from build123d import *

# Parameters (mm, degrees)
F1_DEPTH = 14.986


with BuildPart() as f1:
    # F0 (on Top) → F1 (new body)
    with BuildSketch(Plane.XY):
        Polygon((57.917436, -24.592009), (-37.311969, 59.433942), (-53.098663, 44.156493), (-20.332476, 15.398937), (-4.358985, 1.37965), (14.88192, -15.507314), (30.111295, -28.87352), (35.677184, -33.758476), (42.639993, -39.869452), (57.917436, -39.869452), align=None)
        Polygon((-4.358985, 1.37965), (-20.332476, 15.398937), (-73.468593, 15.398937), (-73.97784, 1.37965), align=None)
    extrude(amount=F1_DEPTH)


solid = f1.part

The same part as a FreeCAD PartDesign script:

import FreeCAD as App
import Part
import Sketcher
Q = App.Units.Quantity


def add_polygon(sketch, points):
    """Adds a closed chain of lines whose ends are joined by coincident constraints."""
    first, n = sketch.GeometryCount, len(points)
    for a, b in zip(points, points[1:] + points[:1]):
        sketch.addGeometry(Part.LineSegment(App.Vector(*a, 0), App.Vector(*b, 0)), False)
    for i in range(n):
        sketch.addConstraint(Sketcher.Constraint("Coincident", first + i, 2, first + (i + 1) % n, 1))

doc = App.newDocument("Part")
body = doc.addObject("PartDesign::Body", "Body")

# Sketch on XY plane
sketch1 = body.newObject("Sketcher::SketchObject", "Sketch")
sketch1.AttachmentSupport = (doc.getObject("XY_Plane"), [""])
sketch1.MapMode = "FlatFace"
add_polygon(sketch1, [(58, -25), (-37, 59), (-53, 44), (-20, 15), (-73, 15), (-74, 1), (-4, 1), (15, -16), (30, -29), (36, -34), (43, -40), (58, -40)])  # lines 0-11
sketch1.addConstraint(Sketcher.Constraint("Horizontal", 3))
sketch1.addConstraint(Sketcher.Constraint("Horizontal", 5))
sketch1.addConstraint(Sketcher.Constraint("Horizontal", 10))
sketch1.addConstraint(Sketcher.Constraint("Vertical", 11))
sketch1.addConstraint(Sketcher.Constraint("Parallel", 2, 6))
sketch1.addConstraint(Sketcher.Constraint("Parallel", 6, 7))
sketch1.addConstraint(Sketcher.Constraint("Parallel", 7, 8))
sketch1.addConstraint(Sketcher.Constraint("Parallel", 8, 9))
sketch1.addConstraint(Sketcher.Constraint("Equal", 10, 11))
sketch1.addConstraint(Sketcher.Constraint("Distance", 0, Q("5 in")))
sketch1.addConstraint(Sketcher.Constraint("DistanceX", 5, 1, 5, 2, Q("2.7408998 in")))
sketch1.addConstraint(Sketcher.Constraint("Distance", 2, 43.596101))
sketch1.addConstraint(Sketcher.Constraint("Distance", 6, 25.600429))
sketch1.addConstraint(Sketcher.Constraint("DistanceX", 3, 2, 3, 1, 53.136117))
sketch1.addConstraint(Sketcher.Constraint("DistanceX", 10, 1, 10, 2, 15.277443))
sketch1.addConstraint(Sketcher.Constraint("DistanceX", 0, 2, -1, 1, 37.311969))
sketch1.addConstraint(Sketcher.Constraint("DistanceX", 4, 2, -1, 1, 73.97784))
sketch1.addConstraint(Sketcher.Constraint("DistanceY", -1, 1, 4, 2, 1.37965))
sketch1.addConstraint(Sketcher.Constraint("DistanceX", -1, 1, 6, 2, 14.88192))
sketch1.addConstraint(Sketcher.Constraint("DistanceY", 7, 2, -1, 1, 28.87352))
sketch1.addConstraint(Sketcher.Constraint("DistanceY", 11, 2, -1, 1, 24.592009))
sketch1.addConstraint(Sketcher.Constraint("DistanceY", 1, 2, 0, 2, 15.277449))
sketch1.addConstraint(Sketcher.Constraint("DistanceX", 2, 2, 5, 2, 15.973491))
sketch1.addConstraint(Sketcher.Constraint("DistanceX", 7, 2, 8, 2, 5.565889))
pad1 = body.newObject("PartDesign::Pad", "Pad")
pad1.Profile = sketch1
pad1.Length = Q("0.59 in")

doc.recompute()
